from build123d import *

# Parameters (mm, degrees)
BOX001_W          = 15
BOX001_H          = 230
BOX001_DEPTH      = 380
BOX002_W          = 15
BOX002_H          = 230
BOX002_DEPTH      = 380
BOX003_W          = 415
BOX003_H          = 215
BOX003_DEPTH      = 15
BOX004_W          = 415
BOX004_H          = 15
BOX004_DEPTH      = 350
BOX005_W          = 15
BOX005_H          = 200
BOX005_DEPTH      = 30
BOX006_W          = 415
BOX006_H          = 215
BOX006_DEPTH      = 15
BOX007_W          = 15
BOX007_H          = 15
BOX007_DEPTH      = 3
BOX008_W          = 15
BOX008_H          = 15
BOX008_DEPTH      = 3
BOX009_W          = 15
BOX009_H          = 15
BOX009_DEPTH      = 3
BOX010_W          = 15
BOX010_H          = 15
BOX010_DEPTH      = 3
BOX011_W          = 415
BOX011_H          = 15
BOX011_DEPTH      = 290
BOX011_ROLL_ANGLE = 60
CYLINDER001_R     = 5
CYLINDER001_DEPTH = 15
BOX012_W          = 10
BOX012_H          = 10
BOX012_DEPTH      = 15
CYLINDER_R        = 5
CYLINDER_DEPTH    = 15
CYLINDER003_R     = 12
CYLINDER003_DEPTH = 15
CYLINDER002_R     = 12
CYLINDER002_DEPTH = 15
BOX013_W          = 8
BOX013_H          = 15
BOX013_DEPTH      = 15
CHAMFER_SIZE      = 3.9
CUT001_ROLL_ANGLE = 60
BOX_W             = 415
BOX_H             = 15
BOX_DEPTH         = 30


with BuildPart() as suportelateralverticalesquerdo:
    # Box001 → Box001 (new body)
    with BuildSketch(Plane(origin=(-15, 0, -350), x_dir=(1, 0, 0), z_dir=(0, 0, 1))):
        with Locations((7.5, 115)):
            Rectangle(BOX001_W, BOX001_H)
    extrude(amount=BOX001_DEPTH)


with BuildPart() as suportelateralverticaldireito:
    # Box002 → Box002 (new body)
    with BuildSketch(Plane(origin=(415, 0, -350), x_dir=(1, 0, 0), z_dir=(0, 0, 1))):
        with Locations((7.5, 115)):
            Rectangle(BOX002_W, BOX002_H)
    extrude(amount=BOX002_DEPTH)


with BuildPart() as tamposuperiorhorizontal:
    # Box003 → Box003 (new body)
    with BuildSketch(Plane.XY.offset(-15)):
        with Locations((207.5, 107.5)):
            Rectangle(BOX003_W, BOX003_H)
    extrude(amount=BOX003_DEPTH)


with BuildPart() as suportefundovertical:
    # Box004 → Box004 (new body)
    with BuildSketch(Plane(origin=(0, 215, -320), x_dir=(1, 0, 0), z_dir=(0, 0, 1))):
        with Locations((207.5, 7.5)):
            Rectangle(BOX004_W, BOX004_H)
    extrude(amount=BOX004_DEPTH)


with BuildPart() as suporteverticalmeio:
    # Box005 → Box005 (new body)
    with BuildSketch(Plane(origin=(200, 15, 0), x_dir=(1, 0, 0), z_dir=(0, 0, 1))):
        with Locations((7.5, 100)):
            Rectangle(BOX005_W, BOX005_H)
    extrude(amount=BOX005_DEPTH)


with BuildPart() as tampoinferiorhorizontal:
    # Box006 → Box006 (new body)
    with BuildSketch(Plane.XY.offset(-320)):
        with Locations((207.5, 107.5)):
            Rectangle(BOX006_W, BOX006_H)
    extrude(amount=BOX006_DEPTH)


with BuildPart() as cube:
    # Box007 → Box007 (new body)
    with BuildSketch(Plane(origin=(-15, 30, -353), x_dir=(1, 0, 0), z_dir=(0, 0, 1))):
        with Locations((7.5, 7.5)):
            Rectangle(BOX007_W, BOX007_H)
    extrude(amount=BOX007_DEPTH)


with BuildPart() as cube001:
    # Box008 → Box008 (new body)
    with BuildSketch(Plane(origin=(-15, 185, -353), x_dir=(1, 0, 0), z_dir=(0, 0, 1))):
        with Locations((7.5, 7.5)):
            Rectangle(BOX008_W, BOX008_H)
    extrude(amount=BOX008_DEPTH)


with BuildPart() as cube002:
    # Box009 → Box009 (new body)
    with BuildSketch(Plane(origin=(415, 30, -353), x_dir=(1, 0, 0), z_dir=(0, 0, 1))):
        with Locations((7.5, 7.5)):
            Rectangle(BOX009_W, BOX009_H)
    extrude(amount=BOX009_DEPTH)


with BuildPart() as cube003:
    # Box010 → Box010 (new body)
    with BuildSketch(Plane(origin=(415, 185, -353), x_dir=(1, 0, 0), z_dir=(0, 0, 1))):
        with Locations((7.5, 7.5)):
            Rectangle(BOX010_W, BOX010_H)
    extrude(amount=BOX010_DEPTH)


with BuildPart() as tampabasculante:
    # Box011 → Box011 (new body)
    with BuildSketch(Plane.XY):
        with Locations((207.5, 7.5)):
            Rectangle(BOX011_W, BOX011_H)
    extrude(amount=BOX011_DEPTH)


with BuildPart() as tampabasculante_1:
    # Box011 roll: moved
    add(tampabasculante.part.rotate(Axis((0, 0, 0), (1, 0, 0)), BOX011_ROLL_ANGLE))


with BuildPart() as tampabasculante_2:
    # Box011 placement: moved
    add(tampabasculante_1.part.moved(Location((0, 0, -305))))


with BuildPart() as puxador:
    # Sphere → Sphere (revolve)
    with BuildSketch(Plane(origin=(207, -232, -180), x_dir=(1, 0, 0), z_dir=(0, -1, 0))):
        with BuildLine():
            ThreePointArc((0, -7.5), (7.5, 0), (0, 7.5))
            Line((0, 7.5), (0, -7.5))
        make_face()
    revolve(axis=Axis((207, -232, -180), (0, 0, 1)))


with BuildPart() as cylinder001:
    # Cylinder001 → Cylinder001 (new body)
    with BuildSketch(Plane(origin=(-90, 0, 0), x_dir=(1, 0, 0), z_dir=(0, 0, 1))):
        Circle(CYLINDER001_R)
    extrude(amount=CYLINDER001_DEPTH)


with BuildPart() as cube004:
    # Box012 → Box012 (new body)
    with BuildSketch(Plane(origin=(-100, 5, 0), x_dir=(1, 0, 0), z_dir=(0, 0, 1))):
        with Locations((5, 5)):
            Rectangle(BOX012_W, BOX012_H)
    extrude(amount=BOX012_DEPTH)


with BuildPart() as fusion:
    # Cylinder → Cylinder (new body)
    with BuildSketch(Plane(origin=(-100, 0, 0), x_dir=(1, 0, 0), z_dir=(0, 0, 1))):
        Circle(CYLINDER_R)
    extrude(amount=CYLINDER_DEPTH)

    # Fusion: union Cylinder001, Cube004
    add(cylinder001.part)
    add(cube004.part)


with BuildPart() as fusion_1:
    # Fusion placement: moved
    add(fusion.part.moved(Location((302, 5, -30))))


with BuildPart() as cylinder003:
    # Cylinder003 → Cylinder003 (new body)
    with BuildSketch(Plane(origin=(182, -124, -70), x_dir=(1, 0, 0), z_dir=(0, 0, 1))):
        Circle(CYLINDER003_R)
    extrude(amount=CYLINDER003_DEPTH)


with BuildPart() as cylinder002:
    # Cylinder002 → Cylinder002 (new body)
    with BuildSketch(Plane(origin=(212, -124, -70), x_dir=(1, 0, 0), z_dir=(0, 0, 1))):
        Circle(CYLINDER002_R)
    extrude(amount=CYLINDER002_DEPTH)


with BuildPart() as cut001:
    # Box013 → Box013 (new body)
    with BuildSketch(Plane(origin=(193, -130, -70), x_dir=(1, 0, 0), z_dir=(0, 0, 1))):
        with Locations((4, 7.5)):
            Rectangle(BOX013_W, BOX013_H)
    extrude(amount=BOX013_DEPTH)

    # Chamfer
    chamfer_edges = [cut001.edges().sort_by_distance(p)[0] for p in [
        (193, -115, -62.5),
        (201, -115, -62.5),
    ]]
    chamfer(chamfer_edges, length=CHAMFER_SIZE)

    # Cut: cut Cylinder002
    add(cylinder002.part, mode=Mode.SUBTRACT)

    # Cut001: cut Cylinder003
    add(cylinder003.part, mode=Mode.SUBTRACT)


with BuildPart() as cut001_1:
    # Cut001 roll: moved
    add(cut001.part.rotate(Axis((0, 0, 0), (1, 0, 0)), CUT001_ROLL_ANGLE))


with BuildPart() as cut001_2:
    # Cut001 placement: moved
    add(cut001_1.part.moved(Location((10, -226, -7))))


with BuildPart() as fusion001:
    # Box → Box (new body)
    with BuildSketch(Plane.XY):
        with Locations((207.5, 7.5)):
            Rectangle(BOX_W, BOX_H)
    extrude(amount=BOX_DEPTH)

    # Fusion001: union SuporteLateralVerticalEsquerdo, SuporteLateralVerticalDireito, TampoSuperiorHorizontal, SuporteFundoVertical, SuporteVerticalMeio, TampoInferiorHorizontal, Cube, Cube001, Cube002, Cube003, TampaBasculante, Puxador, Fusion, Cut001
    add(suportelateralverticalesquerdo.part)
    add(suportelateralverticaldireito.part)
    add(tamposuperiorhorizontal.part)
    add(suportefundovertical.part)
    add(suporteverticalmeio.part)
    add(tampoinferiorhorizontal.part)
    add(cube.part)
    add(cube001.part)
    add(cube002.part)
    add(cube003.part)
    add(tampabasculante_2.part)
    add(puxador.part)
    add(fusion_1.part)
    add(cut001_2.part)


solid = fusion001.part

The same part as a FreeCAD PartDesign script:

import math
import FreeCAD as App
import Part
import Sketcher

V = App.Vector
Q = App.Units.Quantity


def edges_at(feature, points):
    """Names of the edges that pass closest to the given points."""
    edges = feature.Shape.Edges
    near = lambda p: min(range(len(edges)), key=lambda i: edges[i].distToShape(Part.Vertex(*p))[0])
    return sorted({f"Edge{near(p) + 1}" for p in points})


def add_polygon(sketch, points):
    """Adds a closed chain of lines whose ends are joined by coincident constraints."""
    first, n = sketch.GeometryCount, len(points)
    for a, b in zip(points, points[1:] + points[:1]):
        sketch.addGeometry(Part.LineSegment(App.Vector(*a, 0), App.Vector(*b, 0)), False)
    for i in range(n):
        sketch.addConstraint(Sketcher.Constraint("Coincident", first + i, 2, first + (i + 1) % n, 1))

doc = App.newDocument("Part")
body = doc.addObject("PartDesign::Body", "Body")

sketch1 = doc.addObject("Sketcher::SketchObject", "Sketch")
body.addObject(sketch1)
sketch1.AttachmentSupport = (doc.XY_Plane, [""])
sketch1.MapMode = "FlatFace"
sketch1.AttachmentOffset = App.Placement(V(0, 0, -350), App.Rotation())
add_polygon(sketch1, [(-15, 230), (-15, 0), (0, 0), (0, 230)])
sketch1.addConstraint([
    Sketcher.Constraint("Vertical", 0),
    Sketcher.Constraint("Horizontal", 1),
    Sketcher.Constraint("Vertical", 2),
    Sketcher.Constraint("Horizontal", 3),
    Sketcher.Constraint("Coincident", 1, 2, -1, 1),
    Sketcher.Constraint("DistanceX", 1, 1, 1, 2, Q("15 mm")),
    Sketcher.Constraint("DistanceY", 0, 2, 0, 1, Q("230 mm")),
])
pad1 = doc.addObject("PartDesign::Pad", "Pad")
body.addObject(pad1)
pad1.Profile = sketch1
pad1.Length = 380
body2 = doc.addObject("PartDesign::Body", "Body001")

sketch2 = doc.addObject("Sketcher::SketchObject", "Sketch001")
body2.addObject(sketch2)
sketch2.AttachmentSupport = (doc.getObject("XY_Plane001"), [""])
sketch2.MapMode = "FlatFace"
sketch2.AttachmentOffset = App.Placement(V(0, 0, -350), App.Rotation())
add_polygon(sketch2, [(415, 230), (415, 0), (430, 0), (430, 230)])
sketch2.addConstraint([
    Sketcher.Constraint("Vertical", 0),
    Sketcher.Constraint("Horizontal", 1),
    Sketcher.Constraint("Vertical", 2),
    Sketcher.Constraint("Horizontal", 3),
    Sketcher.Constraint("PointOnObject", 0, 2, -1),
    Sketcher.Constraint("DistanceX", 1, 1, 1, 2, Q("15 mm")),
    Sketcher.Constraint("DistanceY", 0, 2, 0, 1, Q("230 mm")),
    Sketcher.Constraint("DistanceX", -1, 1, 0, 2, Q("415 mm")),
])
pad2 = doc.addObject("PartDesign::Pad", "Pad001")
body2.addObject(pad2)
pad2.Profile = sketch2
pad2.Length = 380
body3 = doc.addObject("PartDesign::Body", "Body002")

sketch3 = doc.addObject("Sketcher::SketchObject", "Sketch002")
body3.addObject(sketch3)
sketch3.AttachmentSupport = (doc.getObject("XY_Plane002"), [""])
sketch3.MapMode = "FlatFace"
sketch3.AttachmentOffset = App.Placement(V(0, 0, -15), App.Rotation())
add_polygon(sketch3, [(0, 215), (0, 0), (415, 0), (415, 215)])
sketch3.addConstraint([
    Sketcher.Constraint("Vertical", 0),
    Sketcher.Constraint("Horizontal", 1),
    Sketcher.Constraint("Vertical", 2),
    Sketcher.Constraint("Horizontal", 3),
    Sketcher.Constraint("Coincident", 0, 2, -1, 1),
    Sketcher.Constraint("DistanceX", 1, 1, 1, 2, Q("415 mm")),
    Sketcher.Constraint("DistanceY", 0, 2, 0, 1, Q("215 mm")),
])
pad3 = doc.addObject("PartDesign::Pad", "Pad002")
body3.addObject(pad3)
pad3.Profile = sketch3
pad3.Length = 15
body4 = doc.addObject("PartDesign::Body", "Body003")

sketch4 = doc.addObject("Sketcher::SketchObject", "Sketch003")
body4.addObject(sketch4)
sketch4.AttachmentSupport = (doc.getObject("XY_Plane003"), [""])
sketch4.MapMode = "FlatFace"
sketch4.AttachmentOffset = App.Placement(V(0, 0, -320), App.Rotation())
add_polygon(sketch4, [(0, 230), (0, 215), (415, 215), (415, 230)])
sketch4.addConstraint([
    Sketcher.Constraint("Vertical", 0),
    Sketcher.Constraint("Horizontal", 1),
    Sketcher.Constraint("Vertical", 2),
    Sketcher.Constraint("Horizontal", 3),
    Sketcher.Constraint("PointOnObject", 0, 2, -2),
    Sketcher.Constraint("DistanceX", 1, 1, 1, 2, Q("415 mm")),
    Sketcher.Constraint("DistanceY", 0, 2, 0, 1, Q("15 mm")),
    Sketcher.Constraint("DistanceY", -1, 1, 0, 2, Q("215 mm")),
])
pad4 = doc.addObject("PartDesign::Pad", "Pad003")
body4.addObject(pad4)
pad4.Profile = sketch4
pad4.Length = 350
body5 = doc.addObject("PartDesign::Body", "Body004")

sketch5 = doc.addObject("Sketcher::SketchObject", "Sketch004")
body5.addObject(sketch5)
sketch5.AttachmentSupport = (doc.getObject("XY_Plane004"), [""])
sketch5.MapMode = "FlatFace"
add_polygon(sketch5, [(200, 215), (200, 15), (215, 15), (215, 215)])
sketch5.addConstraint([
    Sketcher.Constraint("Vertical", 0),
    Sketcher.Constraint("Horizontal", 1),
    Sketcher.Constraint("Vertical", 2),
    Sketcher.Constraint("Horizontal", 3),
    Sketcher.Constraint("DistanceX", 1, 1, 1, 2, Q("15 mm")),
    Sketcher.Constraint("DistanceY", 0, 2, 0, 1, Q("200 mm")),
    Sketcher.Constraint("DistanceX", -1, 1, 0, 2, Q("200 mm")),
    Sketcher.Constraint("DistanceY", -1, 1, 0, 2, Q("15 mm")),
])
pad5 = doc.addObject("PartDesign::Pad", "Pad004")
body5.addObject(pad5)
pad5.Profile = sketch5
pad5.Length = 30
body6 = doc.addObject("PartDesign::Body", "Body005")

sketch6 = doc.addObject("Sketcher::SketchObject", "Sketch005")
body6.addObject(sketch6)
sketch6.AttachmentSupport = (doc.getObject("XY_Plane005"), [""])
sketch6.MapMode = "FlatFace"
sketch6.AttachmentOffset = App.Placement(V(0, 0, -320), App.Rotation())
add_polygon(sketch6, [(0, 215), (0, 0), (415, 0), (415, 215)])
sketch6.addConstraint([
    Sketcher.Constraint("Vertical", 0),
    Sketcher.Constraint("Horizontal", 1),
    Sketcher.Constraint("Vertical", 2),
    Sketcher.Constraint("Horizontal", 3),
    Sketcher.Constraint("Coincident", 0, 2, -1, 1),
    Sketcher.Constraint("DistanceX", 1, 1, 1, 2, Q("415 mm")),
    Sketcher.Constraint("DistanceY", 0, 2, 0, 1, Q("215 mm")),
])
pad6 = doc.addObject("PartDesign::Pad", "Pad005")
body6.addObject(pad6)
pad6.Profile = sketch6
pad6.Length = 15
body7 = doc.addObject("PartDesign::Body", "Body006")

sketch7 = doc.addObject("Sketcher::SketchObject", "Sketch006")
body7.addObject(sketch7)
sketch7.AttachmentSupport = (doc.getObject("XY_Plane006"), [""])
sketch7.MapMode = "FlatFace"
sketch7.AttachmentOffset = App.Placement(V(0, 0, -353), App.Rotation())
add_polygon(sketch7, [(-15, 45), (-15, 30), (0, 30), (0, 45)])
sketch7.addConstraint([
    Sketcher.Constraint("Vertical", 0),
    Sketcher.Constraint("Horizontal", 1),
    Sketcher.Constraint("Vertical", 2),
    Sketcher.Constraint("Horizontal", 3),
    Sketcher.Constraint("PointOnObject", 1, 2, -2),
    Sketcher.Constraint("Equal", 3, 0),
    Sketcher.Constraint("DistanceX", 1, 1, 1, 2, Q("15 mm")),
    Sketcher.Constraint("DistanceY", -1, 1, 0, 2, Q("30 mm")),
])
pad7 = doc.addObject("PartDesign::Pad", "Pad006")
body7.addObject(pad7)
pad7.Profile = sketch7
pad7.Length = 3
body8 = doc.addObject("PartDesign::Body", "Body007")

sketch8 = doc.addObject("Sketcher::SketchObject", "Sketch007")
body8.addObject(sketch8)
sketch8.AttachmentSupport = (doc.getObject("XY_Plane007"), [""])
sketch8.MapMode = "FlatFace"
sketch8.AttachmentOffset = App.Placement(V(0, 0, -353), App.Rotation())
add_polygon(sketch8, [(-15, 200), (-15, 185), (0, 185), (0, 200)])
sketch8.addConstraint([
    Sketcher.Constraint("Vertical", 0),
    Sketcher.Constraint("Horizontal", 1),
    Sketcher.Constraint("Vertical", 2),
    Sketcher.Constraint("Horizontal", 3),
    Sketcher.Constraint("PointOnObject", 1, 2, -2),
    Sketcher.Constraint("Equal", 3, 0),
    Sketcher.Constraint("DistanceX", 1, 1, 1, 2, Q("15 mm")),
    Sketcher.Constraint("DistanceY", -1, 1, 0, 2, Q("185 mm")),
])
pad8 = doc.addObject("PartDesign::Pad", "Pad007")
body8.addObject(pad8)
pad8.Profile = sketch8
pad8.Length = 3
body9 = doc.addObject("PartDesign::Body", "Body008")

sketch9 = doc.addObject("Sketcher::SketchObject", "Sketch008")
body9.addObject(sketch9)
sketch9.AttachmentSupport = (doc.getObject("XY_Plane008"), [""])
sketch9.MapMode = "FlatFace"
sketch9.AttachmentOffset = App.Placement(V(0, 0, -353), App.Rotation())
add_polygon(sketch9, [(415, 45), (415, 30), (430, 30), (430, 45)])
sketch9.addConstraint([
    Sketcher.Constraint("Vertical", 0),
    Sketcher.Constraint("Horizontal", 1),
    Sketcher.Constraint("Vertical", 2),
    Sketcher.Constraint("Horizontal", 3),
    Sketcher.Constraint("Equal", 3, 0),
    Sketcher.Constraint("DistanceX", 1, 1, 1, 2, Q("15 mm")),
    Sketcher.Constraint("DistanceX", -1, 1, 0, 2, Q("415 mm")),
    Sketcher.Constraint("DistanceY", -1, 1, 0, 2, Q("30 mm")),
])
pad9 = doc.addObject("PartDesign::Pad", "Pad008")
body9.addObject(pad9)
pad9.Profile = sketch9
pad9.Length = 3
body10 = doc.addObject("PartDesign::Body", "Body009")

sketch10 = doc.addObject("Sketcher::SketchObject", "Sketch009")
body10.addObject(sketch10)
sketch10.AttachmentSupport = (doc.getObject("XY_Plane009"), [""])
sketch10.MapMode = "FlatFace"
sketch10.AttachmentOffset = App.Placement(V(0, 0, -353), App.Rotation())
add_polygon(sketch10, [(415, 200), (415, 185), (430, 185), (430, 200)])
sketch10.addConstraint([
    Sketcher.Constraint("Vertical", 0),
    Sketcher.Constraint("Horizontal", 1),
    Sketcher.Constraint("Vertical", 2),
    Sketcher.Constraint("Horizontal", 3),
    Sketcher.Constraint("Equal", 3, 0),
    Sketcher.Constraint("DistanceX", 1, 1, 1, 2, Q("15 mm")),
    Sketcher.Constraint("DistanceX", -1, 1, 0, 2, Q("415 mm")),
    Sketcher.Constraint("DistanceY", -1, 1, 0, 2, Q("185 mm")),
])
pad10 = doc.addObject("PartDesign::Pad", "Pad009")
body10.addObject(pad10)
pad10.Profile = sketch10
pad10.Length = 3
body11 = doc.addObject("PartDesign::Body", "Body010")

sketch11 = doc.addObject("Sketcher::SketchObject", "Sketch010")
body11.addObject(sketch11)
sketch11.AttachmentSupport = (doc.getObject("XY_Plane010"), [""])
sketch11.MapMode = "FlatFace"
add_polygon(sketch11, [(0, 15), (0, 0), (415, 0), (415, 15)])
sketch11.addConstraint([
    Sketcher.Constraint("Vertical", 0),
    Sketcher.Constraint("Horizontal", 1),
    Sketcher.Constraint("Vertical", 2),
    Sketcher.Constraint("Horizontal", 3),
    Sketcher.Constraint("Coincident", 0, 2, -1, 1),
    Sketcher.Constraint("DistanceX", 1, 1, 1, 2, Q("415 mm")),
    Sketcher.Constraint("DistanceY", 0, 2, 0, 1, Q("15 mm")),
])
pad11 = doc.addObject("PartDesign::Pad", "Pad010")
body11.addObject(pad11)
pad11.Profile = sketch11
pad11.Length = 290
body12 = doc.addObject("PartDesign::Body", "Body011")
doc.recompute()

body11.Placement = App.Placement(V(0, 0, 0), App.Rotation(V(1, 0, 0), 60))
boolean = doc.addObject("PartDesign::Boolean", "Boolean")
body12.addObject(boolean)
boolean.Type = "Fuse"
boolean.addObjects([body11])
body13 = doc.addObject("PartDesign::Body", "Body012")
doc.recompute()

body12.Placement = App.Placement(V(0, 0, -305), App.Rotation(V(0, 0, 1), 0))
boolean2 = doc.addObject("PartDesign::Boolean", "Boolean001")
body13.addObject(boolean2)
boolean2.Type = "Fuse"
boolean2.addObjects([body12])
body14 = doc.addObject("PartDesign::Body", "Body013")

sketch12 = doc.addObject("Sketcher::SketchObject", "Sketch011")
body14.addObject(sketch12)
sketch12.AttachmentSupport = (doc.getObject("XZ_Plane013"), [""])
sketch12.MapMode = "FlatFace"
sketch12.AttachmentOffset = App.Placement(V(0, 0, 232), App.Rotation())
sketch12.addGeometry([
    Part.ArcOfCircle(Part.Circle(V(207, -180, 0), V(0, 0, 1), 8), math.radians(-90), math.radians(90)),
    Part.LineSegment(V(207, -172, 0), V(207, -188, 0)),
], False)
sketch12.addGeometry(Part.LineSegment(V(207, -188, 0), V(207, -172, 0)), True)
sketch12.addConstraint([
    Sketcher.Constraint("Coincident", 0, 1, 1, 2),
    Sketcher.Constraint("Coincident", 1, 1, 0, 2),
    Sketcher.Constraint("Vertical", 1),
    Sketcher.Constraint("Vertical", 2),
    Sketcher.Constraint("Coincident", 2, 1, 0, 1),
    Sketcher.Constraint("Equal", 1, 2),
    Sketcher.Constraint("Radius", 0, Q("7.5 mm")),
    Sketcher.Constraint("DistanceX", -1, 1, 0, 3, Q("207 mm")),
    Sketcher.Constraint("DistanceY", 0, 3, -1, 1, Q("180 mm")),
    Sketcher.Constraint("DistanceX", -1, 1, 0, 1, Q("207 mm")),
])
revolution = doc.addObject("PartDesign::Revolution", "Revolution")
body14.addObject(revolution)
revolution.Profile = sketch12
revolution.ReferenceAxis = (sketch12, ["Axis0"])
revolution.Angle = 360
body15 = doc.addObject("PartDesign::Body", "Body014")

sketch13 = doc.addObject("Sketcher::SketchObject", "Sketch012")
body15.addObject(sketch13)
sketch13.AttachmentSupport = (doc.getObject("XY_Plane014"), [""])
sketch13.MapMode = "FlatFace"
sketch13.addGeometry(Part.Circle(V(-90, 0, 0), V(0, 0, 1), 5), False)
sketch13.addConstraint([
    Sketcher.Constraint("PointOnObject", 0, 3, -1),
    Sketcher.Constraint("Diameter", 0, Q("10 mm")),
    Sketcher.Constraint("DistanceX", 0, 3, -1, 1, Q("90 mm")),
])
pad12 = doc.addObject("PartDesign::Pad", "Pad011")
body15.addObject(pad12)
pad12.Profile = sketch13
pad12.Length = 15
body16 = doc.addObject("PartDesign::Body", "Body015")

sketch14 = doc.addObject("Sketcher::SketchObject", "Sketch013")
body16.addObject(sketch14)
sketch14.AttachmentSupport = (doc.getObject("XY_Plane015"), [""])
sketch14.MapMode = "FlatFace"
add_polygon(sketch14, [(-100, 15), (-100, 5), (-90, 5), (-90, 15)])
sketch14.addConstraint([
    Sketcher.Constraint("Vertical", 0),
    Sketcher.Constraint("Horizontal", 1),
    Sketcher.Constraint("Vertical", 2),
    Sketcher.Constraint("Horizontal", 3),
    Sketcher.Constraint("Equal", 3, 0),
    Sketcher.Constraint("DistanceX", 1, 1, 1, 2, Q("10 mm")),
    Sketcher.Constraint("DistanceX", 0, 2, -1, 1, Q("100 mm")),
    Sketcher.Constraint("DistanceY", -1, 1, 0, 2, Q("5 mm")),
])
pad13 = doc.addObject("PartDesign::Pad", "Pad012")
body16.addObject(pad13)
pad13.Profile = sketch14
pad13.Length = 15
body17 = doc.addObject("PartDesign::Body", "Body016")
body17.AllowCompound = True

sketch15 = doc.addObject("Sketcher::SketchObject", "Sketch014")
body17.addObject(sketch15)
sketch15.AttachmentSupport = (doc.getObject("XY_Plane016"), [""])
sketch15.MapMode = "FlatFace"
sketch15.addGeometry(Part.Circle(V(-100, 0, 0), V(0, 0, 1), 5), False)
sketch15.addConstraint([
    Sketcher.Constraint("PointOnObject", 0, 3, -1),
    Sketcher.Constraint("Diameter", 0, Q("10 mm")),
    Sketcher.Constraint("DistanceX", 0, 3, -1, 1, Q("100 mm")),
])
pad14 = doc.addObject("PartDesign::Pad", "Pad013")
body17.addObject(pad14)
pad14.Profile = sketch15
pad14.Length = 15
doc.recompute()

boolean3 = doc.addObject("PartDesign::Boolean", "Boolean002")
body17.addObject(boolean3)
boolean3.Type = "Fuse"
boolean3.addObjects([body15])
doc.recompute()

boolean4 = doc.addObject("PartDesign::Boolean", "Boolean003")
body17.addObject(boolean4)
boolean4.Type = "Fuse"
boolean4.addObjects([body16])
body18 = doc.addObject("PartDesign::Body", "Body017")
body18.AllowCompound = True
doc.recompute()

body17.Placement = App.Placement(V(302, 5, -30), App.Rotation(V(0, 0, 1), 0))
boolean5 = doc.addObject("PartDesign::Boolean", "Boolean004")
body18.addObject(boolean5)
boolean5.Type = "Fuse"
boolean5.addObjects([body17])
body19 = doc.addObject("PartDesign::Body", "Body018")

sketch16 = doc.addObject("Sketcher::SketchObject", "Sketch015")
body19.addObject(sketch16)
sketch16.AttachmentSupport = (doc.getObject("XY_Plane018"), [""])
sketch16.MapMode = "FlatFace"
sketch16.AttachmentOffset = App.Placement(V(0, 0, -70), App.Rotation())
sketch16.addGeometry(Part.Circle(V(182, -124, 0), V(0, 0, 1), 12), False)
sketch16.addConstraint([
    Sketcher.Constraint("Diameter", 0, Q("24 mm")),
    Sketcher.Constraint("DistanceX", -1, 1, 0, 3, Q("182 mm")),
    Sketcher.Constraint("DistanceY", 0, 3, -1, 1, Q("124 mm")),
])
pad15 = doc.addObject("PartDesign::Pad", "Pad014")
body19.addObject(pad15)
pad15.Profile = sketch16
pad15.Length = 15
body20 = doc.addObject("PartDesign::Body", "Body019")

sketch17 = doc.addObject("Sketcher::SketchObject", "Sketch016")
body20.addObject(sketch17)
sketch17.AttachmentSupport = (doc.getObject("XY_Plane019"), [""])
sketch17.MapMode = "FlatFace"
sketch17.AttachmentOffset = App.Placement(V(0, 0, -70), App.Rotation())
sketch17.addGeometry(Part.Circle(V(212, -124, 0), V(0, 0, 1), 12), False)
sketch17.addConstraint([
    Sketcher.Constraint("Diameter", 0, Q("24 mm")),
    Sketcher.Constraint("DistanceX", -1, 1, 0, 3, Q("212 mm")),
    Sketcher.Constraint("DistanceY", 0, 3, -1, 1, Q("124 mm")),
])
pad16 = doc.addObject("PartDesign::Pad", "Pad015")
body20.addObject(pad16)
pad16.Profile = sketch17
pad16.Length = 15
body21 = doc.addObject("PartDesign::Body", "Body020")

sketch18 = doc.addObject("Sketcher::SketchObject", "Sketch017")
body21.addObject(sketch18)
sketch18.AttachmentSupport = (doc.getObject("XY_Plane020"), [""])
sketch18.MapMode = "FlatFace"
sketch18.AttachmentOffset = App.Placement(V(0, 0, -70), App.Rotation())
add_polygon(sketch18, [(193, -115), (193, -130), (201, -130), (201, -115)])
sketch18.addConstraint([
    Sketcher.Constraint("Vertical", 0),
    Sketcher.Constraint("Horizontal", 1),
    Sketcher.Constraint("Vertical", 2),
    Sketcher.Constraint("Horizontal", 3),
    Sketcher.Constraint("DistanceX", 1, 1, 1, 2, Q("8 mm")),
    Sketcher.Constraint("DistanceY", 0, 2, 0, 1, Q("15 mm")),
    Sketcher.Constraint("DistanceX", -1, 1, 0, 2, Q("193 mm")),
    Sketcher.Constraint("DistanceY", 0, 2, -1, 1, Q("130 mm")),
])
pad17 = doc.addObject("PartDesign::Pad", "Pad016")
body21.addObject(pad17)
pad17.Profile = sketch18
pad17.Length = 15
doc.recompute()

chamfer = doc.addObject("PartDesign::Chamfer", "Chamfer")
body21.addObject(chamfer)
chamfer.Base = (pad17, edges_at(pad17, [(193, -115, -62.5), (201, -115, -62.5)]))
chamfer.Size = 3.9
doc.recompute()

boolean6 = doc.addObject("PartDesign::Boolean", "Boolean005")
body21.addObject(boolean6)
boolean6.Type = "Cut"
boolean6.addObjects([body20])
doc.recompute()

boolean7 = doc.addObject("PartDesign::Boolean", "Boolean006")
body21.addObject(boolean7)
boolean7.Type = "Cut"
boolean7.addObjects([body19])
body22 = doc.addObject("PartDesign::Body", "Body021")
doc.recompute()

body21.Placement = App.Placement(V(0, 0, 0), App.Rotation(V(1, 0, 0), 60))
boolean8 = doc.addObject("PartDesign::Boolean", "Boolean007")
body22.addObject(boolean8)
boolean8.Type = "Fuse"
boolean8.addObjects([body21])
body23 = doc.addObject("PartDesign::Body", "Body022")
doc.recompute()

body22.Placement = App.Placement(V(10, -226, -7), App.Rotation(V(0, 0, 1), 0))
boolean9 = doc.addObject("PartDesign::Boolean", "Boolean008")
body23.addObject(boolean9)
boolean9.Type = "Fuse"
boolean9.addObjects([body22])
body24 = doc.addObject("PartDesign::Body", "Body023")
body24.AllowCompound = True

sketch19 = doc.addObject("Sketcher::SketchObject", "Sketch018")
body24.addObject(sketch19)
sketch19.AttachmentSupport = (doc.getObject("XY_Plane023"), [""])
sketch19.MapMode = "FlatFace"
add_polygon(sketch19, [(0, 15), (0, 0), (415, 0), (415, 15)])
sketch19.addConstraint([
    Sketcher.Constraint("Vertical", 0),
    Sketcher.Constraint("Horizontal", 1),
    Sketcher.Constraint("Vertical", 2),
    Sketcher.Constraint("Horizontal", 3),
    Sketcher.Constraint("Coincident", 0, 2, -1, 1),
    Sketcher.Constraint("DistanceX", 1, 1, 1, 2, Q("415 mm")),
    Sketcher.Constraint("DistanceY", 0, 2, 0, 1, Q("15 mm")),
])
pad18 = doc.addObject("PartDesign::Pad", "Pad017")
body24.addObject(pad18)
pad18.Profile = sketch19
pad18.Length = 30
doc.recompute()

boolean10 = doc.addObject("PartDesign::Boolean", "Boolean009")
body24.addObject(boolean10)
boolean10.Type = "Fuse"
boolean10.addObjects([body])
doc.recompute()

boolean11 = doc.addObject("PartDesign::Boolean", "Boolean010")
body24.addObject(boolean11)
boolean11.Type = "Fuse"
boolean11.addObjects([body2])
doc.recompute()

boolean12 = doc.addObject("PartDesign::Boolean", "Boolean011")
body24.addObject(boolean12)
boolean12.Type = "Fuse"
boolean12.addObjects([body3])
doc.recompute()

boolean13 = doc.addObject("PartDesign::Boolean", "Boolean012")
body24.addObject(boolean13)
boolean13.Type = "Fuse"
boolean13.addObjects([body4])
doc.recompute()

boolean14 = doc.addObject("PartDesign::Boolean", "Boolean013")
body24.addObject(boolean14)
boolean14.Type = "Fuse"
boolean14.addObjects([body5])
doc.recompute()

boolean15 = doc.addObject("PartDesign::Boolean", "Boolean014")
body24.addObject(boolean15)
boolean15.Type = "Fuse"
boolean15.addObjects([body6])
doc.recompute()

boolean16 = doc.addObject("PartDesign::Boolean", "Boolean015")
body24.addObject(boolean16)
boolean16.Type = "Fuse"
boolean16.addObjects([body7])
doc.recompute()

boolean17 = doc.addObject("PartDesign::Boolean", "Boolean016")
body24.addObject(boolean17)
boolean17.Type = "Fuse"
boolean17.addObjects([body8])
doc.recompute()

boolean18 = doc.addObject("PartDesign::Boolean", "Boolean017")
body24.addObject(boolean18)
boolean18.Type = "Fuse"
boolean18.addObjects([body9])
doc.recompute()

boolean19 = doc.addObject("PartDesign::Boolean", "Boolean018")
body24.addObject(boolean19)
boolean19.Type = "Fuse"
boolean19.addObjects([body10])
doc.recompute()

boolean20 = doc.addObject("PartDesign::Boolean", "Boolean019")
body24.addObject(boolean20)
boolean20.Type = "Fuse"
boolean20.addObjects([body13])
doc.recompute()

boolean21 = doc.addObject("PartDesign::Boolean", "Boolean020")
body24.addObject(boolean21)
boolean21.Type = "Fuse"
boolean21.addObjects([body14])
doc.recompute()

boolean22 = doc.addObject("PartDesign::Boolean", "Boolean021")
body24.addObject(boolean22)
boolean22.Type = "Fuse"
boolean22.addObjects([body18])
doc.recompute()

boolean23 = doc.addObject("PartDesign::Boolean", "Boolean022")
body24.addObject(boolean23)
boolean23.Type = "Fuse"
boolean23.addObjects([body23])

doc.recompute()
